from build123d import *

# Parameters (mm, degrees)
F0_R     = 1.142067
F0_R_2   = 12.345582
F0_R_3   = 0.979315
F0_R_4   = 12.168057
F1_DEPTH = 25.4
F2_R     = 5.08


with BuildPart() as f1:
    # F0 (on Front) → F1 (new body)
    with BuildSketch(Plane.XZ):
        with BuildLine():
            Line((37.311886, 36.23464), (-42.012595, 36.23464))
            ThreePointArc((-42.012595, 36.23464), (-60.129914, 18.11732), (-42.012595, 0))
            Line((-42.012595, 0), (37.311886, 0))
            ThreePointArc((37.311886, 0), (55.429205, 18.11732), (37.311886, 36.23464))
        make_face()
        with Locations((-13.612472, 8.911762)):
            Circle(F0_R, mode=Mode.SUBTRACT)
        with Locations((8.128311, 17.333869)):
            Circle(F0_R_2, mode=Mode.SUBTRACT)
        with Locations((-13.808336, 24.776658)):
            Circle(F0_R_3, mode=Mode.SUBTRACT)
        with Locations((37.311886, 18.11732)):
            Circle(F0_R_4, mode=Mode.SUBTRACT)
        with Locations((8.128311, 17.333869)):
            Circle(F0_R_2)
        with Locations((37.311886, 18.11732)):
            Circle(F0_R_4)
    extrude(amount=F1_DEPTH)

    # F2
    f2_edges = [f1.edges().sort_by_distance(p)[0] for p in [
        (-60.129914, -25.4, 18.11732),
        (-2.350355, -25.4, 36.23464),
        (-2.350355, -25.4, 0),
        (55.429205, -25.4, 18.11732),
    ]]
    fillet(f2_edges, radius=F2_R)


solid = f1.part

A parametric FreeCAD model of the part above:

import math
import FreeCAD as App
import Part
import Sketcher

V = App.Vector
Q = App.Units.Quantity


def edges_at(feature, points):
    """Names of the edges that pass closest to the given points."""
    edges = feature.Shape.Edges
    near = lambda p: min(range(len(edges)), key=lambda i: edges[i].distToShape(Part.Vertex(*p))[0])
    return sorted({f"Edge{near(p) + 1}" for p in points})

doc = App.newDocument("Part")
body = doc.addObject("PartDesign::Body", "Body")

# Sketch on XZ plane
sketch1 = body.newObject("Sketcher::SketchObject", "Sketch")
sketch1.AttachmentSupport = (doc.getObject("XZ_Plane"), [""])
sketch1.MapMode = "FlatFace"
sketch1.addGeometry(Part.LineSegment(V(37.311886, 36.23464, 0), V(-42.012595, 36.23464, 0)), False)
sketch1.addGeometry(Part.ArcOfCircle(Part.Circle(V(-42.012594, 18.11732, 0), V(0, 0, 1), 18.11732), math.radians(90.000003), math.radians(269.999997)), False)
sketch1.addGeometry(Part.LineSegment(V(-42.012595, 0, 0), V(37.311886, 0, 0)), False)
sketch1.addGeometry(Part.ArcOfCircle(Part.Circle(V(37.311885, 18.11732, 0), V(0, 0, 1), 18.11732), math.radians(-89.999997), math.radians(89.999997)), False)
sketch1.addGeometry(Part.Circle(V(-13.612472, 8.911762, 0), V(0, 0, 1), 1.142067), False)
sketch1.addGeometry(Part.Circle(V(-13.808336, 24.776658, 0), V(0, 0, 1), 0.979315), False)
sketch1.addConstraint(Sketcher.Constraint("Tangent", 0, 2, 1, 1))
sketch1.addConstraint(Sketcher.Constraint("Tangent", 1, 2, 2, 1))
sketch1.addConstraint(Sketcher.Constraint("Tangent", 2, 2, 3, 1))
sketch1.addConstraint(Sketcher.Constraint("Tangent", 3, 2, 0, 1))
sketch1.addConstraint(Sketcher.Constraint("Horizontal", 0))
sketch1.addConstraint(Sketcher.Constraint("Horizontal", 2))
sketch1.addConstraint(Sketcher.Constraint("PointOnObject", 1, 2, -1))
sketch1.addConstraint(Sketcher.Constraint("Diameter", 5, 1.95863))
sketch1.addConstraint(Sketcher.Constraint("Radius", 1, 18.11732))
sketch1.addConstraint(Sketcher.Constraint("Diameter", 4, 2.284134))
sketch1.addConstraint(Sketcher.Constraint("DistanceX", 0, 2, 0, 1, 79.324481))
sketch1.addConstraint(Sketcher.Constraint("DistanceY", -1, 1, 5, 3, 24.776658))
sketch1.addConstraint(Sketcher.Constraint("DistanceX", 1, 3, 4, 3, 28.400122))
sketch1.addConstraint(Sketcher.Constraint("DistanceX", 5, 3, 3, 3, 51.120221))
sketch1.addConstraint(Sketcher.Constraint("DistanceY", 1, 2, 4, 3, 8.911762))
sketch1.addConstraint(Sketcher.Constraint("DistanceX", 1, 3, -1, 1, 42.012594))
pad1 = body.newObject("PartDesign::Pad", "Pad")
pad1.Profile = sketch1
pad1.Length = Q("1 in")
doc.recompute()

fillet = body.newObject("PartDesign::Fillet", "Fillet")
fillet.Base = (pad1, edges_at(pad1, [
    (-60.13, -25.4, 18.117),
    (-2.35, -25.4, 36.235),
    (-2.35, -25.4, 0),
    (55.429, -25.4, 18.117),
]))
fillet.Radius = Q("0.2 in")

doc.recompute()
